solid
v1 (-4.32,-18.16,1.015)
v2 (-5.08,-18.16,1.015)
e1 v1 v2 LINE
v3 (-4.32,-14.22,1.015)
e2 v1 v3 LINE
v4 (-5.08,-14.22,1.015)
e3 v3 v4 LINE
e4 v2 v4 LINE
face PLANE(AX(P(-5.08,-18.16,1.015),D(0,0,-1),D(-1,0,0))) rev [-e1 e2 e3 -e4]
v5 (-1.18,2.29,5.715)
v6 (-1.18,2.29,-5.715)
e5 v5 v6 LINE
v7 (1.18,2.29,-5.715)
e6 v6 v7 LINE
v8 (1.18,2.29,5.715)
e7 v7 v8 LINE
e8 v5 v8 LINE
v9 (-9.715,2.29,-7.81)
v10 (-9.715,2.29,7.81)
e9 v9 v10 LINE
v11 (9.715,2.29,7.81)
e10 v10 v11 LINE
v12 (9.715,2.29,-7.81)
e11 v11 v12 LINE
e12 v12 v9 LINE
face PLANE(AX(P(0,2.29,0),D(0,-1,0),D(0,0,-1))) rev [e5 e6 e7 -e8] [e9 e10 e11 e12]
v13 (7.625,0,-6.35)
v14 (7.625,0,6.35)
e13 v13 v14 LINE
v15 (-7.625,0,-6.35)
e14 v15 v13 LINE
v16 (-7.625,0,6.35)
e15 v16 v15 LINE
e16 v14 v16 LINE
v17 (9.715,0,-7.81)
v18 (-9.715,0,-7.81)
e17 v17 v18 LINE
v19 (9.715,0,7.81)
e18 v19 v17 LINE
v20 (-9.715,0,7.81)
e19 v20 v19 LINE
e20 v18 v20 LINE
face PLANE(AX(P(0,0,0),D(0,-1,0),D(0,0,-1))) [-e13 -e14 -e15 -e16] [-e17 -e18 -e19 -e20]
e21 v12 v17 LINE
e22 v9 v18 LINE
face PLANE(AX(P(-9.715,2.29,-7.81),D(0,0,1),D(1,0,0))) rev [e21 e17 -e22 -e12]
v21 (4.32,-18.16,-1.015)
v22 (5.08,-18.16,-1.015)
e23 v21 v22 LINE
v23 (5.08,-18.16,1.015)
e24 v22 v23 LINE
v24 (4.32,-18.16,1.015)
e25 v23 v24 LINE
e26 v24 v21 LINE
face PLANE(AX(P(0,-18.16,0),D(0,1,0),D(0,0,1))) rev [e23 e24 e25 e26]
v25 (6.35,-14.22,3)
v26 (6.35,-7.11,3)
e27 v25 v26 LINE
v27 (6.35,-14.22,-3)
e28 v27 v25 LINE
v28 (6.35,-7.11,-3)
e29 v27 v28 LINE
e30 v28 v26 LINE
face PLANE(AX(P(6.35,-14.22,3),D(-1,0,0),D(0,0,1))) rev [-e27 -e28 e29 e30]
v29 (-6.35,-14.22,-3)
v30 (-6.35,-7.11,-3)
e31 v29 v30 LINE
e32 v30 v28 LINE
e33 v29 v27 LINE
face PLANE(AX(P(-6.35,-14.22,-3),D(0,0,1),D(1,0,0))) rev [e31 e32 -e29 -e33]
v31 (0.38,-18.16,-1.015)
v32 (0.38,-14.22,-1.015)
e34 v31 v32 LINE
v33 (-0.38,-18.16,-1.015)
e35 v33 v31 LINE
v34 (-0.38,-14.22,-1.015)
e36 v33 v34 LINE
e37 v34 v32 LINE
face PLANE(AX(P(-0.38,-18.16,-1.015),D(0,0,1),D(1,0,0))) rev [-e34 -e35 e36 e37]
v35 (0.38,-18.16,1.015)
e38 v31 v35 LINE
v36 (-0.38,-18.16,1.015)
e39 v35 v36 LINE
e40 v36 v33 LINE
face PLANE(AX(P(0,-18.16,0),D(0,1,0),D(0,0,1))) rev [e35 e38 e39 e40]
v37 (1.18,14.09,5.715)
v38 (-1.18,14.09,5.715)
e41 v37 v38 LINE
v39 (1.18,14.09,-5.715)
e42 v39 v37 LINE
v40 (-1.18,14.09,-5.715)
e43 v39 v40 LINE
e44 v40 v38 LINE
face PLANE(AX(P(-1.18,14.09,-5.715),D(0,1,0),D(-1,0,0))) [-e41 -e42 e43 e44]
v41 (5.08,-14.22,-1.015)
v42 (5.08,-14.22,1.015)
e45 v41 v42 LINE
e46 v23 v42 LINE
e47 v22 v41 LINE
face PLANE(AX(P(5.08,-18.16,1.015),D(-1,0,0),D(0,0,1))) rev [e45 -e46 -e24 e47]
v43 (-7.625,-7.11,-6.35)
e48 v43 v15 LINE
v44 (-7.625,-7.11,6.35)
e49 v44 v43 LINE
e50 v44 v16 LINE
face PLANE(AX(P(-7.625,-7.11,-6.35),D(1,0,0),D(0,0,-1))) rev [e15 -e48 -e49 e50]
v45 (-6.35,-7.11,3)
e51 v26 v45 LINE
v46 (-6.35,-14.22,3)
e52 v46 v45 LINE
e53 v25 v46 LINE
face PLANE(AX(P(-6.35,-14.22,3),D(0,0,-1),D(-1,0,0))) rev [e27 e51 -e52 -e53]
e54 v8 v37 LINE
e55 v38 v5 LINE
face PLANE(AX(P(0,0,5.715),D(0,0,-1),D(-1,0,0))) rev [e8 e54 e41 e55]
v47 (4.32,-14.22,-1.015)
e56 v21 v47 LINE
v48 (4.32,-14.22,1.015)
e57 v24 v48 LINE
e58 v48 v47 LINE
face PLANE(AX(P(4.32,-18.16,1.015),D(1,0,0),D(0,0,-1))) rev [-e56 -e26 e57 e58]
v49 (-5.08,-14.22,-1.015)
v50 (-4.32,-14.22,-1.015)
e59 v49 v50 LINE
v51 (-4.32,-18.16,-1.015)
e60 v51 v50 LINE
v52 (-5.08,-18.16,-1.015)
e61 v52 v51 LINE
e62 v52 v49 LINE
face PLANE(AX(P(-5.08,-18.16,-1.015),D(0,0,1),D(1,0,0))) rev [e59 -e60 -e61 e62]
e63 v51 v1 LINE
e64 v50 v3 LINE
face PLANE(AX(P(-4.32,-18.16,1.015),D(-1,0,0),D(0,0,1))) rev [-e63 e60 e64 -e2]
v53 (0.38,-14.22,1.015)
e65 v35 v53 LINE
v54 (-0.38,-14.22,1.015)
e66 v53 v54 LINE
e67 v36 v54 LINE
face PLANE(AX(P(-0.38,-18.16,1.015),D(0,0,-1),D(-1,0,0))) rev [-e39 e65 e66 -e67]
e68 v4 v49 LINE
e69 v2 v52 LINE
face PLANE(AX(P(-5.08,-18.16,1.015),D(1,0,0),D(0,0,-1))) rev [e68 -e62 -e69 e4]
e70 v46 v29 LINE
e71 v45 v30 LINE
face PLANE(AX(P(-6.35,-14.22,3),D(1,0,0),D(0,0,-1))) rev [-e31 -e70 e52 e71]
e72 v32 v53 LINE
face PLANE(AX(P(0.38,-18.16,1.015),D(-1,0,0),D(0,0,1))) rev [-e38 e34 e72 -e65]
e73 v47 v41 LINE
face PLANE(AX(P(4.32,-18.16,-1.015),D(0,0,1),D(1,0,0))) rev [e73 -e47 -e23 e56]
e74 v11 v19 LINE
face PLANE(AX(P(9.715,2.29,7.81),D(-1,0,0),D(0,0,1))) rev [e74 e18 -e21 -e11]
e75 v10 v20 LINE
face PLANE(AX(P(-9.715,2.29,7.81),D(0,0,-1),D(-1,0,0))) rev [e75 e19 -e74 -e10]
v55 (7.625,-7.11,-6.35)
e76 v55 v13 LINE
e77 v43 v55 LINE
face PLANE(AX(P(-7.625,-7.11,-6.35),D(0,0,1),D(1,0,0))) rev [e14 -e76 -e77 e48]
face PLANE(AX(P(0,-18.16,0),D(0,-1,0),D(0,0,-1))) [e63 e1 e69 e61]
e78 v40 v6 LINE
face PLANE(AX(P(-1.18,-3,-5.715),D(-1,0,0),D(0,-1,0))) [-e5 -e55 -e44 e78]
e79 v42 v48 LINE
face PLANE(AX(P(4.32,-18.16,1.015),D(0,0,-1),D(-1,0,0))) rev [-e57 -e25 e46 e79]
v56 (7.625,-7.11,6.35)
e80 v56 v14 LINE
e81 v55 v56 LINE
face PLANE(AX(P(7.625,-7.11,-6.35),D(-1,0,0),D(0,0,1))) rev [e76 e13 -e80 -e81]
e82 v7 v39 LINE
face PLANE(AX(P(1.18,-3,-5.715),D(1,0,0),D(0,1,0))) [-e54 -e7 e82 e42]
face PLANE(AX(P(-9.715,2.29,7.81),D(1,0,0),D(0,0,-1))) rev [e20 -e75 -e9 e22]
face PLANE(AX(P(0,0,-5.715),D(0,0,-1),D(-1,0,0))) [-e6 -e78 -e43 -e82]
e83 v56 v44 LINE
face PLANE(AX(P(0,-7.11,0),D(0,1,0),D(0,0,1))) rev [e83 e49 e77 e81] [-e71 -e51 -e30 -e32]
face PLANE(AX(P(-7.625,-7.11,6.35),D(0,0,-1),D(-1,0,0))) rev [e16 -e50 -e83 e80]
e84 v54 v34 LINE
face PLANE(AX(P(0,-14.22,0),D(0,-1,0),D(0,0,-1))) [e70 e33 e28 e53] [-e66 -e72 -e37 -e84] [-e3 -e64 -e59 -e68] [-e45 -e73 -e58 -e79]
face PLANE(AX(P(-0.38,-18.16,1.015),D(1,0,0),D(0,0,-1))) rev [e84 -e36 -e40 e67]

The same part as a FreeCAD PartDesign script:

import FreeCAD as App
import Part
import Sketcher
Q = App.Units.Quantity


def add_polygon(sketch, points):
    """Adds a closed chain of lines whose ends are joined by coincident constraints."""
    first, n = sketch.GeometryCount, len(points)
    for a, b in zip(points, points[1:] + points[:1]):
        sketch.addGeometry(Part.LineSegment(App.Vector(*a, 0), App.Vector(*b, 0)), False)
    for i in range(n):
        sketch.addConstraint(Sketcher.Constraint("Coincident", first + i, 2, first + (i + 1) % n, 1))

doc = App.newDocument("Part")
body = doc.addObject("PartDesign::Body", "Body")

sketch1 = doc.addObject("Sketcher::SketchObject", "Sketch")
body.addObject(sketch1)
sketch1.AttachmentSupport = (doc.XZ_Plane, [""])
sketch1.MapMode = "FlatFace"
add_polygon(sketch1, [(-10, -8), (-10, 8), (10, 8), (10, -8)])
sketch1.addConstraint(Sketcher.Constraint("Vertical", 0))
sketch1.addConstraint(Sketcher.Constraint("Horizontal", 1))
sketch1.addConstraint(Sketcher.Constraint("Vertical", 2))
sketch1.addConstraint(Sketcher.Constraint("Horizontal", 3))
sketch1.addConstraint(Sketcher.Constraint("Symmetric", 0, 2, 2, 2, -1, 1))
sketch1.addConstraint(Sketcher.Constraint("DistanceX", 1, 1, 1, 2, 19.43))
sketch1.addConstraint(Sketcher.Constraint("DistanceY", 0, 1, 0, 2, 15.62))
pad1 = doc.addObject("PartDesign::Pad", "Pad")
body.addObject(pad1)
pad1.Profile = sketch1
pad1.Length = 2.29
pad1.Reversed = True

sketch2 = doc.addObject("Sketcher::SketchObject", "Sketch001")
body.addObject(sketch2)
sketch2.AttachmentSupport = (doc.XZ_Plane, [""])
sketch2.MapMode = "FlatFace"
add_polygon(sketch2, [(-8, 6), (-8, -6), (8, -6), (8, 6)])
sketch2.addConstraint(Sketcher.Constraint("Vertical", 0))
sketch2.addConstraint(Sketcher.Constraint("Horizontal", 1))
sketch2.addConstraint(Sketcher.Constraint("Vertical", 2))
sketch2.addConstraint(Sketcher.Constraint("Horizontal", 3))
sketch2.addConstraint(Sketcher.Constraint("Symmetric", 0, 2, 2, 2, -1, 1))
sketch2.addConstraint(Sketcher.Constraint("DistanceY", 0, 2, 0, 1, Q("0.5 in")))
sketch2.addConstraint(Sketcher.Constraint("DistanceX", 1, 1, 1, 2, 15.25))
pad2 = doc.addObject("PartDesign::Pad", "Pad001")
body.addObject(pad2)
pad2.Profile = sketch2
pad2.Length = 7.11

sketch3 = doc.addObject("Sketcher::SketchObject", "Sketch002")
body.addObject(sketch3)
sketch3.AttachmentSupport = (doc.XZ_Plane, [""])
sketch3.MapMode = "FlatFace"
sketch3.AttachmentOffset = App.Placement(App.Vector(0, 0, 7.11), App.Rotation())
add_polygon(sketch3, [(-6, 3), (-6, -3), (6, -3), (6, 3)])
sketch3.addConstraint(Sketcher.Constraint("Vertical", 0))
sketch3.addConstraint(Sketcher.Constraint("Horizontal", 1))
sketch3.addConstraint(Sketcher.Constraint("Vertical", 2))
sketch3.addConstraint(Sketcher.Constraint("Horizontal", 3))
sketch3.addConstraint(Sketcher.Constraint("Symmetric", 0, 2, 2, 2, -1, 1))
sketch3.addConstraint(Sketcher.Constraint("DistanceX", 1, 1, 1, 2, Q("0.5 in")))
sketch3.addConstraint(Sketcher.Constraint("DistanceY", 0, 2, 0, 1, 6.0))
pad3 = doc.addObject("PartDesign::Pad", "Pad002")
body.addObject(pad3)
pad3.Profile = sketch3
pad3.Length = 7.11

sketch4 = doc.addObject("Sketcher::SketchObject", "Sketch003")
body.addObject(sketch4)
sketch4.AttachmentSupport = (doc.XZ_Plane, [""])
sketch4.MapMode = "FlatFace"
sketch4.AttachmentOffset = App.Placement(App.Vector(0, 0, 14.22), App.Rotation())
add_polygon(sketch4, [(-0.4, 1), (-0.4, -1), (0.4, -1), (0.4, 1)])
add_polygon(sketch4, [(-5.1, 1), (-5.1, -1), (-4.3, -1), (-4.3, 1)])
add_polygon(sketch4, [(4.3, 1), (4.3, -1), (5.1, -1), (5.1, 1)])
sketch4.addConstraint(Sketcher.Constraint("Vertical", 0))
sketch4.addConstraint(Sketcher.Constraint("Horizontal", 1))
sketch4.addConstraint(Sketcher.Constraint("Vertical", 2))
sketch4.addConstraint(Sketcher.Constraint("Horizontal", 3))
sketch4.addConstraint(Sketcher.Constraint("Vertical", 4))
sketch4.addConstraint(Sketcher.Constraint("Horizontal", 5))
sketch4.addConstraint(Sketcher.Constraint("Vertical", 6))
sketch4.addConstraint(Sketcher.Constraint("Horizontal", 7))
sketch4.addConstraint(Sketcher.Constraint("Vertical", 8))
sketch4.addConstraint(Sketcher.Constraint("Horizontal", 9))
sketch4.addConstraint(Sketcher.Constraint("Vertical", 10))
sketch4.addConstraint(Sketcher.Constraint("Horizontal", 11))
sketch4.addConstraint(Sketcher.Constraint("Symmetric", 0, 2, 2, 2, -1, 1))
sketch4.addConstraint(Sketcher.Constraint("Symmetric", 6, 2, 8, 2, -1, 1))
sketch4.addConstraint(Sketcher.Constraint("Symmetric", 4, 2, 10, 2, -1, 1))
sketch4.addConstraint(Sketcher.Constraint("Horizontal", 1, 2, 4, 2))
sketch4.addConstraint(Sketcher.Constraint("Horizontal", 3, 2, 6, 2))
sketch4.addConstraint(Sketcher.Constraint("Equal", 3, 5))
sketch4.addConstraint(Sketcher.Constraint("DistanceX", 4, 2, -1, 1, Q("0.2 in")))
sketch4.addConstraint(Sketcher.Constraint("DistanceX", 1, 1, 1, 2, 0.76))
sketch4.addConstraint(Sketcher.Constraint("DistanceY", 0, 2, 0, 1, 2.03))
pad4 = doc.addObject("PartDesign::Pad", "Pad003")
body.addObject(pad4)
pad4.Profile = sketch4
pad4.Length = 3.94

sketch5 = doc.addObject("Sketcher::SketchObject", "Sketch004")
body.addObject(sketch5)
sketch5.AttachmentSupport = (doc.XY_Plane, [""])
sketch5.MapMode = "FlatFace"
add_polygon(sketch5, [(-1.2, 14.1), (-1.2, -3), (1.2, -3), (1.2, 14.1)])
sketch5.addConstraint(Sketcher.Constraint("Vertical", 0))
sketch5.addConstraint(Sketcher.Constraint("Horizontal", 1))
sketch5.addConstraint(Sketcher.Constraint("Vertical", 2))
sketch5.addConstraint(Sketcher.Constraint("Horizontal", 3))
sketch5.addConstraint(Sketcher.Constraint("DistanceX", 1, 1, 1, 2, 2.36))
sketch5.addConstraint(Sketcher.Constraint("DistanceY", 0, 2, 0, 1, 17.09))
sketch5.addConstraint(Sketcher.Constraint("DistanceX", 0, 2, -1, 1, 1.18))
sketch5.addConstraint(Sketcher.Constraint("DistanceY", 0, 2, -1, 1, 3.0))
pad5 = doc.addObject("PartDesign::Pad", "Pad004")
body.addObject(pad5)
pad5.Profile = sketch5
pad5.Type = "TwoLengths"
pad5.Length = Q("0.225 in")
pad5.Length2 = Q("0.225 in")

doc.recompute()
